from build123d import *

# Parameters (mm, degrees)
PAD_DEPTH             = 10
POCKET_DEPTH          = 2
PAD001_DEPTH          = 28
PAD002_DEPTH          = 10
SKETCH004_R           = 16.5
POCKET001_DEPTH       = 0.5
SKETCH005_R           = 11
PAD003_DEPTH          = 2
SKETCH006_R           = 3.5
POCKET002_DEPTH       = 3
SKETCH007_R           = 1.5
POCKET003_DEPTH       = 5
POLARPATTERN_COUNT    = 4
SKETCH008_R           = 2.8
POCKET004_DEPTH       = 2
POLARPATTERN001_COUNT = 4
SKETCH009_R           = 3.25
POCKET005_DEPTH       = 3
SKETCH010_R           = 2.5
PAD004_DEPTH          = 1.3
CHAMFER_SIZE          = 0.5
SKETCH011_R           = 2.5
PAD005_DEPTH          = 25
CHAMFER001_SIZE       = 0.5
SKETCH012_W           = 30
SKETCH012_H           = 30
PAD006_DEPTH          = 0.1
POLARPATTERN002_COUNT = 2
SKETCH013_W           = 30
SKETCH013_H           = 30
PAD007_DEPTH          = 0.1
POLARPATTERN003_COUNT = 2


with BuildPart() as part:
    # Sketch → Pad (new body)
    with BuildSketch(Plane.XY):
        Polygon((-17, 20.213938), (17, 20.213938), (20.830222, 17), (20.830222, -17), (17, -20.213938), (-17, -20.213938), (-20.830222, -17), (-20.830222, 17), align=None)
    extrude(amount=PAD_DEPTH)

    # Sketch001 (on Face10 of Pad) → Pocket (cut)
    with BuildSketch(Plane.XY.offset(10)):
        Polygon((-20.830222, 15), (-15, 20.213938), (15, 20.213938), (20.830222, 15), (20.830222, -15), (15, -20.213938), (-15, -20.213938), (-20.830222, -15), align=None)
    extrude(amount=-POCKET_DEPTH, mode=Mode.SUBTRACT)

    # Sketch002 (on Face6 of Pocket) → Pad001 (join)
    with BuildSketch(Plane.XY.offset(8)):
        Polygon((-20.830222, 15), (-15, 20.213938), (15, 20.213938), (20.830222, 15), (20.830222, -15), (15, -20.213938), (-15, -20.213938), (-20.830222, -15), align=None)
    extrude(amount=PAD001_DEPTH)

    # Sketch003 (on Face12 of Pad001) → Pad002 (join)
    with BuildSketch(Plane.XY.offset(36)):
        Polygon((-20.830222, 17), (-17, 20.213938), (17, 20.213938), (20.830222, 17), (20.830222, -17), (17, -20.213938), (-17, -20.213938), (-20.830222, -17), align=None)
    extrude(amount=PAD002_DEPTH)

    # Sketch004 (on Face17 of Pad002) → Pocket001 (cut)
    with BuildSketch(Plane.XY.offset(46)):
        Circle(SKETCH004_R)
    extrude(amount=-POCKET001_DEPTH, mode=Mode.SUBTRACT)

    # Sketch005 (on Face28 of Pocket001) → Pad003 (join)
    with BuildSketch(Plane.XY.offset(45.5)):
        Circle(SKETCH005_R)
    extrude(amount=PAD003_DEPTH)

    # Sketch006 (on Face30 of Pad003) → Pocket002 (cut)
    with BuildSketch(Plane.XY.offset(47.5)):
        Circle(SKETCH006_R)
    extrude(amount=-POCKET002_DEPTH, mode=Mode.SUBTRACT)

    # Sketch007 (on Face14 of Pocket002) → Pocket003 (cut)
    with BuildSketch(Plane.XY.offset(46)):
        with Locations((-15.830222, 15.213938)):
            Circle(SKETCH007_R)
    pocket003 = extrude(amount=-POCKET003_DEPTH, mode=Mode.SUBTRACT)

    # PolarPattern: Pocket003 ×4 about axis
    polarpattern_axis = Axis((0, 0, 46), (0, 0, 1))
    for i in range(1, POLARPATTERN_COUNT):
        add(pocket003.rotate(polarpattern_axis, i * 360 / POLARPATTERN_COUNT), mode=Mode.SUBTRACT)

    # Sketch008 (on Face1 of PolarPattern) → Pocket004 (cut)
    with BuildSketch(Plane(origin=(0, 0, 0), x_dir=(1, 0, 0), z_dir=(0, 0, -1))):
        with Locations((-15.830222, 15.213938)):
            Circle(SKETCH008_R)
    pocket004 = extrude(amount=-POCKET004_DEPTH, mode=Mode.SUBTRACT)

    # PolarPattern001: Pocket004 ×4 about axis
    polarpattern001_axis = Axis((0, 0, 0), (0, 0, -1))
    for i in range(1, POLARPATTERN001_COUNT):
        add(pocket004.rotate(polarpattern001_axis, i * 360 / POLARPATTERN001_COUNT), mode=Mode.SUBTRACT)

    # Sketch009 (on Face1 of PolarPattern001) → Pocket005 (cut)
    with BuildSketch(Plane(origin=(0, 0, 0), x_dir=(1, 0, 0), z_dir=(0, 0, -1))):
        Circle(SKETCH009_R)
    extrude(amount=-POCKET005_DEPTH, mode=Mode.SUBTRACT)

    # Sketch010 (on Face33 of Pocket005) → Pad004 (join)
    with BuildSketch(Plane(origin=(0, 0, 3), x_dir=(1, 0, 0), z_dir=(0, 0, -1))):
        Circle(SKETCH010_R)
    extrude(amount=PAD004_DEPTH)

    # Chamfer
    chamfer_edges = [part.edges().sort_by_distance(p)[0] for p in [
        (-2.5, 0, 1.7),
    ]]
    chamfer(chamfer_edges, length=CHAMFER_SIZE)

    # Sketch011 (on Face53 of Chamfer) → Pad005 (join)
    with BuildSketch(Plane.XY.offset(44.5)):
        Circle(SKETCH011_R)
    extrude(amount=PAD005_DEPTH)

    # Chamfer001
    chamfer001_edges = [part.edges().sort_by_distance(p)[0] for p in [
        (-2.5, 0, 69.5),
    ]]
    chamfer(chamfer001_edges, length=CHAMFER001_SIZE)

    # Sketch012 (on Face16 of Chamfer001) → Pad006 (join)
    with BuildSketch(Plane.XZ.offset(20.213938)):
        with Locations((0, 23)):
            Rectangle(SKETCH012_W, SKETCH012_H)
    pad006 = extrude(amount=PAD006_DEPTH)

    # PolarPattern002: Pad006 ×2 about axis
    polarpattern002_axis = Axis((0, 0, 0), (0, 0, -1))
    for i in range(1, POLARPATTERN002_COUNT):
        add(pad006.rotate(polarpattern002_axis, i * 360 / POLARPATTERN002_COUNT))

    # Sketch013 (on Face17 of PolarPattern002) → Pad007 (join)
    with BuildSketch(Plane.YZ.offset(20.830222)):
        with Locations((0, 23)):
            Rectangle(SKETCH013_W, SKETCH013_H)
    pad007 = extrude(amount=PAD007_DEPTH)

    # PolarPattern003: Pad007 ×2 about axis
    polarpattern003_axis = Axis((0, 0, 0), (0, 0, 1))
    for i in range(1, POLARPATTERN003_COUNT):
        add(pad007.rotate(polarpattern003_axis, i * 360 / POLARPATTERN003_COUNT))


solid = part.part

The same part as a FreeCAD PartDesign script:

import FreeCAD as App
import Part
import Sketcher

V = App.Vector
Q = App.Units.Quantity


def edges_at(feature, points):
    """Names of the edges that pass closest to the given points."""
    edges = feature.Shape.Edges
    near = lambda p: min(range(len(edges)), key=lambda i: edges[i].distToShape(Part.Vertex(*p))[0])
    return sorted({f"Edge{near(p) + 1}" for p in points})

doc = App.newDocument("Part")
body = doc.addObject("PartDesign::Body", "Body")

# Sketch on XY plane
sketch1 = body.newObject("Sketcher::SketchObject", "Sketch")
sketch1.AttachmentSupport = (doc.getObject("XY_Plane"), [""])
sketch1.MapMode = "FlatFace"
sketch1.addGeometry(Part.LineSegment(V(17, 20.2, 0), V(-17, 20.2, 0)), False)
sketch1.addGeometry(Part.LineSegment(V(-17, 20.2, 0), V(-20.8, 17, 0)), False)
sketch1.addGeometry(Part.LineSegment(V(-20.8, 17, 0), V(-20.8, -17, 0)), False)
sketch1.addGeometry(Part.LineSegment(V(-20.8, -17, 0), V(-17, -20.2, 0)), False)
sketch1.addGeometry(Part.LineSegment(V(-17, -20.2, 0), V(17, -20.2, 0)), False)
sketch1.addGeometry(Part.LineSegment(V(17, -20.2, 0), V(20.8, -17, 0)), False)
sketch1.addGeometry(Part.LineSegment(V(20.8, -17, 0), V(20.8, 17, 0)), False)
sketch1.addGeometry(Part.LineSegment(V(20.8, 17, 0), V(17, 20.2, 0)), False)
sketch1.addConstraint(Sketcher.Constraint("Coincident", 0, 2, 1, 1))
sketch1.addConstraint(Sketcher.Constraint("Coincident", 1, 2, 2, 1))
sketch1.addConstraint(Sketcher.Constraint("Coincident", 2, 2, 3, 1))
sketch1.addConstraint(Sketcher.Constraint("Coincident", 3, 2, 4, 1))
sketch1.addConstraint(Sketcher.Constraint("Coincident", 4, 2, 5, 1))
sketch1.addConstraint(Sketcher.Constraint("Coincident", 5, 2, 6, 1))
sketch1.addConstraint(Sketcher.Constraint("Coincident", 6, 2, 7, 1))
sketch1.addConstraint(Sketcher.Constraint("Coincident", 7, 2, 0, 1))
sketch1.addConstraint(Sketcher.Constraint("Horizontal", 0))
sketch1.addConstraint(Sketcher.Constraint("Vertical", 2))
sketch1.addConstraint(Sketcher.Constraint("Horizontal", 4))
sketch1.addConstraint(Sketcher.Constraint("Vertical", 6))
sketch1.addConstraint(Sketcher.Constraint("Symmetric", 0, 2, 4, 2, -1, 1))
sketch1.addConstraint(Sketcher.Constraint("Symmetric", 1, 2, 5, 2, -1, 1))
sketch1.addConstraint(Sketcher.Constraint("Parallel", 3, 7))
sketch1.addConstraint(Sketcher.Constraint("Horizontal", 2, 2, 5, 2))
sketch1.addConstraint(Sketcher.Constraint("Horizontal", 1, 2, 6, 2))
sketch1.addConstraint(Sketcher.Constraint("Vertical", 0, 2, 3, 2))
sketch1.addConstraint(Sketcher.Constraint("Equal", 4, 2))
sketch1.addConstraint(Sketcher.Constraint("DistanceX", 0, 2, 0, 1, 34.0))
sketch1.addConstraint(Sketcher.Constraint("Angle", 1, Q("-139.999999 deg")))
sketch1.addConstraint(Sketcher.Constraint("Distance", 1, 5.0))
pad1 = body.newObject("PartDesign::Pad", "Pad")
pad1.Profile = sketch1
pad1.Length = 10

# Sketch on XY plane
sketch2 = body.newObject("Sketcher::SketchObject", "Sketch001")
sketch2.AttachmentSupport = (doc.getObject("XY_Plane"), [""])
sketch2.MapMode = "FlatFace"
sketch2.AttachmentOffset = App.Placement(V(0, 0, 10), App.Rotation())
sketch2.addGeometry(Part.LineSegment(V(-15, 20, 0), V(-21, 15, 0)), False)
sketch2.addGeometry(Part.LineSegment(V(-21, 15, 0), V(-21, -15, 0)), False)
sketch2.addGeometry(Part.LineSegment(V(-21, -15, 0), V(-15, -20, 0)), False)
sketch2.addGeometry(Part.LineSegment(V(-15, -20, 0), V(15, -20, 0)), False)
sketch2.addGeometry(Part.LineSegment(V(15, -20, 0), V(21, -15, 0)), False)
sketch2.addGeometry(Part.LineSegment(V(21, -15, 0), V(21, 15, 0)), False)
sketch2.addGeometry(Part.LineSegment(V(21, 15, 0), V(15, 20, 0)), False)
sketch2.addGeometry(Part.LineSegment(V(15, 20, 0), V(-15, 20, 0)), False)
sketch2.addConstraint(Sketcher.Constraint("Coincident", 0, 2, 1, 1))
sketch2.addConstraint(Sketcher.Constraint("Coincident", 1, 2, 2, 1))
sketch2.addConstraint(Sketcher.Constraint("Coincident", 2, 2, 3, 1))
sketch2.addConstraint(Sketcher.Constraint("Coincident", 3, 2, 4, 1))
sketch2.addConstraint(Sketcher.Constraint("Coincident", 4, 2, 5, 1))
sketch2.addConstraint(Sketcher.Constraint("Coincident", 5, 2, 6, 1))
sketch2.addConstraint(Sketcher.Constraint("Coincident", 6, 2, 7, 1))
sketch2.addConstraint(Sketcher.Constraint("Coincident", 7, 2, 0, 1))
sketch2.addConstraint(Sketcher.Constraint("Vertical", 1))
sketch2.addConstraint(Sketcher.Constraint("Horizontal", 3))
sketch2.addConstraint(Sketcher.Constraint("Vertical", 5))
sketch2.addConstraint(Sketcher.Constraint("Horizontal", 7))
sketch2.addConstraint(Sketcher.Constraint("Symmetric", 0, 2, 4, 2, -1, 1))
sketch2.addConstraint(Sketcher.Constraint("Symmetric", 2, 2, 6, 2, -1, 1))
sketch2.addConstraint(Sketcher.Constraint("Parallel", 0, 4))
sketch2.addConstraint(Sketcher.Constraint("Parallel", 2, 6))
sketch2.addConstraint(Sketcher.Constraint("Horizontal", 1, 2, 4, 2))
sketch2.addConstraint(Sketcher.Constraint("Vertical", 3, 2, 6, 2))
sketch2.addConstraint(Sketcher.Constraint("Equal", 7, 1))
sketch2.addConstraint(Sketcher.Constraint("DistanceX", 3, 1, 3, 2, 30.0))
sketch2.addConstraint(Sketcher.Constraint("Distance", 0, 7.82155))
sketch2.addConstraint(Sketcher.Constraint("DistanceX", 0, 2, -1, 1, 20.830222))
pocket1 = body.newObject("PartDesign::Pocket", "Pocket")
pocket1.Profile = sketch2
pocket1.Length = 2

# Sketch on XY plane
sketch3 = body.newObject("Sketcher::SketchObject", "Sketch002")
sketch3.AttachmentSupport = (doc.getObject("XY_Plane"), [""])
sketch3.MapMode = "FlatFace"
sketch3.AttachmentOffset = App.Placement(V(0, 0, 8), App.Rotation())
sketch3.addGeometry(Part.LineSegment(V(-15, 20, 0), V(-21, 15, 0)), False)
sketch3.addGeometry(Part.LineSegment(V(-21, 15, 0), V(-21, -15, 0)), False)
sketch3.addGeometry(Part.LineSegment(V(-21, -15, 0), V(-15, -20, 0)), False)
sketch3.addGeometry(Part.LineSegment(V(-15, -20, 0), V(15, -20, 0)), False)
sketch3.addGeometry(Part.LineSegment(V(15, -20, 0), V(21, -15, 0)), False)
sketch3.addGeometry(Part.LineSegment(V(21, -15, 0), V(21, 15, 0)), False)
sketch3.addGeometry(Part.LineSegment(V(21, 15, 0), V(15, 20, 0)), False)
sketch3.addGeometry(Part.LineSegment(V(15, 20, 0), V(-15, 20, 0)), False)
sketch3.addConstraint(Sketcher.Constraint("Coincident", 0, 2, 1, 1))
sketch3.addConstraint(Sketcher.Constraint("Coincident", 1, 2, 2, 1))
sketch3.addConstraint(Sketcher.Constraint("Coincident", 2, 2, 3, 1))
sketch3.addConstraint(Sketcher.Constraint("Coincident", 3, 2, 4, 1))
sketch3.addConstraint(Sketcher.Constraint("Coincident", 4, 2, 5, 1))
sketch3.addConstraint(Sketcher.Constraint("Coincident", 5, 2, 6, 1))
sketch3.addConstraint(Sketcher.Constraint("Coincident", 6, 2, 7, 1))
sketch3.addConstraint(Sketcher.Constraint("Coincident", 7, 2, 0, 1))
sketch3.addConstraint(Sketcher.Constraint("Vertical", 1))
sketch3.addConstraint(Sketcher.Constraint("Horizontal", 3))
sketch3.addConstraint(Sketcher.Constraint("Vertical", 5))
sketch3.addConstraint(Sketcher.Constraint("Horizontal", 7))
sketch3.addConstraint(Sketcher.Constraint("Symmetric", 0, 2, 4, 2, -1, 1))
sketch3.addConstraint(Sketcher.Constraint("Symmetric", 2, 2, 6, 2, -1, 1))
sketch3.addConstraint(Sketcher.Constraint("Parallel", 0, 4))
sketch3.addConstraint(Sketcher.Constraint("Parallel", 2, 6))
sketch3.addConstraint(Sketcher.Constraint("Horizontal", 1, 2, 4, 2))
sketch3.addConstraint(Sketcher.Constraint("Vertical", 3, 2, 6, 2))
sketch3.addConstraint(Sketcher.Constraint("Equal", 7, 1))
sketch3.addConstraint(Sketcher.Constraint("DistanceX", 3, 1, 3, 2, 30.0))
sketch3.addConstraint(Sketcher.Constraint("Distance", 0, 7.82155))
sketch3.addConstraint(Sketcher.Constraint("DistanceX", 0, 2, -1, 1, 20.830222))
pad2 = body.newObject("PartDesign::Pad", "Pad001")
pad2.Profile = sketch3
pad2.Length = 28

# Sketch on XY plane
sketch4 = body.newObject("Sketcher::SketchObject", "Sketch003")
sketch4.AttachmentSupport = (doc.getObject("XY_Plane"), [""])
sketch4.MapMode = "FlatFace"
sketch4.AttachmentOffset = App.Placement(V(0, 0, 36), App.Rotation())
sketch4.addGeometry(Part.LineSegment(V(-17, 20.2, 0), V(-20.8, 17, 0)), False)
sketch4.addGeometry(Part.LineSegment(V(-20.8, 17, 0), V(-20.8, -17, 0)), False)
sketch4.addGeometry(Part.LineSegment(V(-20.8, -17, 0), V(-17, -20.2, 0)), False)
sketch4.addGeometry(Part.LineSegment(V(-17, -20.2, 0), V(17, -20.2, 0)), False)
sketch4.addGeometry(Part.LineSegment(V(17, -20.2, 0), V(20.8, -17, 0)), False)
sketch4.addGeometry(Part.LineSegment(V(20.8, -17, 0), V(20.8, 17, 0)), False)
sketch4.addGeometry(Part.LineSegment(V(20.8, 17, 0), V(17, 20.2, 0)), False)
sketch4.addGeometry(Part.LineSegment(V(17, 20.2, 0), V(-17, 20.2, 0)), False)
sketch4.addConstraint(Sketcher.Constraint("Coincident", 0, 2, 1, 1))
sketch4.addConstraint(Sketcher.Constraint("Coincident", 1, 2, 2, 1))
sketch4.addConstraint(Sketcher.Constraint("Coincident", 2, 2, 3, 1))
sketch4.addConstraint(Sketcher.Constraint("Coincident", 3, 2, 4, 1))
sketch4.addConstraint(Sketcher.Constraint("Coincident", 4, 2, 5, 1))
sketch4.addConstraint(Sketcher.Constraint("Coincident", 5, 2, 6, 1))
sketch4.addConstraint(Sketcher.Constraint("Coincident", 6, 2, 7, 1))
sketch4.addConstraint(Sketcher.Constraint("Coincident", 7, 2, 0, 1))
sketch4.addConstraint(Sketcher.Constraint("Vertical", 1))
sketch4.addConstraint(Sketcher.Constraint("Horizontal", 3))
sketch4.addConstraint(Sketcher.Constraint("Vertical", 5))
sketch4.addConstraint(Sketcher.Constraint("Horizontal", 7))
sketch4.addConstraint(Sketcher.Constraint("Symmetric", 0, 2, 4, 2, -1, 1))
sketch4.addConstraint(Sketcher.Constraint("Symmetric", 2, 2, 6, 2, -1, 1))
sketch4.addConstraint(Sketcher.Constraint("Parallel", 0, 4))
sketch4.addConstraint(Sketcher.Constraint("Parallel", 2, 6))
sketch4.addConstraint(Sketcher.Constraint("Horizontal", 1, 2, 4, 2))
sketch4.addConstraint(Sketcher.Constraint("Vertical", 3, 2, 6, 2))
sketch4.addConstraint(Sketcher.Constraint("Equal", 7, 1))
sketch4.addConstraint(Sketcher.Constraint("DistanceX", 3, 1, 3, 2, 34.0))
sketch4.addConstraint(Sketcher.Constraint("Angle", 0, Q("-139.999999 deg")))
sketch4.addConstraint(Sketcher.Constraint("Distance", 0, 5.0))
pad3 = body.newObject("PartDesign::Pad", "Pad002")
pad3.Profile = sketch4
pad3.Length = 10

# Sketch on XY plane
sketch5 = body.newObject("Sketcher::SketchObject", "Sketch004")
sketch5.AttachmentSupport = (doc.getObject("XY_Plane"), [""])
sketch5.MapMode = "FlatFace"
sketch5.AttachmentOffset = App.Placement(V(0, 0, 46), App.Rotation())
sketch5.addGeometry(Part.Circle(V(0, 0, 0), V(0, 0, 1), 16), False)
sketch5.addConstraint(Sketcher.Constraint("Coincident", 0, 3, -1, 1))
sketch5.addConstraint(Sketcher.Constraint("Diameter", 0, 33.0))
pocket2 = body.newObject("PartDesign::Pocket", "Pocket001")
pocket2.Profile = sketch5
pocket2.Length = 0.5

# Sketch on XY plane
sketch6 = body.newObject("Sketcher::SketchObject", "Sketch005")
sketch6.AttachmentSupport = (doc.getObject("XY_Plane"), [""])
sketch6.MapMode = "FlatFace"
sketch6.AttachmentOffset = App.Placement(V(0, 0, 45.5), App.Rotation())
sketch6.addGeometry(Part.Circle(V(0, 0, 0), V(0, 0, 1), 11), False)
sketch6.addConstraint(Sketcher.Constraint("Coincident", 0, 3, -1, 1))
sketch6.addConstraint(Sketcher.Constraint("Diameter", 0, 22.0))
pad4 = body.newObject("PartDesign::Pad", "Pad003")
pad4.Profile = sketch6
pad4.Length = 2

# Sketch on XY plane
sketch7 = body.newObject("Sketcher::SketchObject", "Sketch006")
sketch7.AttachmentSupport = (doc.getObject("XY_Plane"), [""])
sketch7.MapMode = "FlatFace"
sketch7.AttachmentOffset = App.Placement(V(0, 0, 47.5), App.Rotation())
sketch7.addGeometry(Part.Circle(V(0, 0, 0), V(0, 0, 1), 3.5), False)
sketch7.addConstraint(Sketcher.Constraint("Coincident", 0, 3, -1, 1))
sketch7.addConstraint(Sketcher.Constraint("Diameter", 0, 7.0))
pocket3 = body.newObject("PartDesign::Pocket", "Pocket002")
pocket3.Profile = sketch7
pocket3.Length = 3

# Sketch on XY plane
sketch8 = body.newObject("Sketcher::SketchObject", "Sketch007")
sketch8.AttachmentSupport = (doc.getObject("XY_Plane"), [""])
sketch8.MapMode = "FlatFace"
sketch8.AttachmentOffset = App.Placement(V(0, 0, 46), App.Rotation())
sketch8.addGeometry(Part.Circle(V(-15.8, 15.2, 0), V(0, 0, 1), 1.5), False)
sketch8.addConstraint(Sketcher.Constraint("Diameter", 0, 3.0))
sketch8.addConstraint(Sketcher.Constraint("DistanceX", 0, 3, -1, 1, 15.830222))
sketch8.addConstraint(Sketcher.Constraint("DistanceY", -1, 1, 0, 3, 15.213938))
pocket4 = body.newObject("PartDesign::Pocket", "Pocket003")
pocket4.Profile = sketch8
pocket4.Length = 5
doc.recompute()

polarpattern = body.newObject("PartDesign::PolarPattern", "PolarPattern")
polarpattern.Originals = [pocket4]
polarpattern.Axis = (doc.getObject("Z_Axis"), [""])
polarpattern.Angle = 360
polarpattern.Occurrences = 4
body.Tip = polarpattern

# Sketch on XY plane
sketch9 = body.newObject("Sketcher::SketchObject", "Sketch008")
sketch9.AttachmentSupport = (doc.getObject("XY_Plane"), [""])
sketch9.MapMode = "FlatFace"
sketch9.addGeometry(Part.Circle(V(-15.8, -15.2, 0), V(0, 0, 1), 2.8), False)
sketch9.addConstraint(Sketcher.Constraint("Diameter", 0, 5.6))
sketch9.addConstraint(Sketcher.Constraint("DistanceX", 0, 3, -1, 1, 15.830222))
sketch9.addConstraint(Sketcher.Constraint("DistanceY", 0, 3, -1, 1, 15.213938))
pocket5 = body.newObject("PartDesign::Pocket", "Pocket004")
pocket5.Profile = sketch9
pocket5.Length = 2
pocket5.Reversed = True
doc.recompute()

polarpattern2 = body.newObject("PartDesign::PolarPattern", "PolarPattern001")
polarpattern2.Originals = [pocket5]
polarpattern2.Axis = (doc.getObject("Z_Axis"), [""])
polarpattern2.Angle = 360
polarpattern2.Occurrences = 4
body.Tip = polarpattern2

# Sketch on XY plane
sketch10 = body.newObject("Sketcher::SketchObject", "Sketch009")
sketch10.AttachmentSupport = (doc.getObject("XY_Plane"), [""])
sketch10.MapMode = "FlatFace"
sketch10.addGeometry(Part.Circle(V(0, 0, 0), V(0, 0, 1), 3.2), False)
sketch10.addConstraint(Sketcher.Constraint("Coincident", 0, 3, -1, 1))
sketch10.addConstraint(Sketcher.Constraint("Diameter", 0, 6.5))
pocket6 = body.newObject("PartDesign::Pocket", "Pocket005")
pocket6.Profile = sketch10
pocket6.Length = 3
pocket6.Reversed = True

# Sketch on XY plane
sketch11 = body.newObject("Sketcher::SketchObject", "Sketch010")
sketch11.AttachmentSupport = (doc.getObject("XY_Plane"), [""])
sketch11.MapMode = "FlatFace"
sketch11.AttachmentOffset = App.Placement(V(0, 0, 3), App.Rotation())
sketch11.addGeometry(Part.Circle(V(0, 0, 0), V(0, 0, 1), 2.5), False)
sketch11.addConstraint(Sketcher.Constraint("Coincident", 0, 3, -1, 1))
sketch11.addConstraint(Sketcher.Constraint("Diameter", 0, 5.0))
pad5 = body.newObject("PartDesign::Pad", "Pad004")
pad5.Profile = sketch11
pad5.Length = 1.3
pad5.Reversed = True
doc.recompute()

chamfer = body.newObject("PartDesign::Chamfer", "Chamfer")
chamfer.Base = (pad5, edges_at(pad5, [(-2.5, 0, 1.7)]))
chamfer.Size = 0.5

# Sketch on XY plane
sketch12 = body.newObject("Sketcher::SketchObject", "Sketch011")
sketch12.AttachmentSupport = (doc.getObject("XY_Plane"), [""])
sketch12.MapMode = "FlatFace"
sketch12.AttachmentOffset = App.Placement(V(0, 0, 44.5), App.Rotation())
sketch12.addGeometry(Part.Circle(V(0, 0, 0), V(0, 0, 1), 2.5), False)
sketch12.addConstraint(Sketcher.Constraint("Coincident", 0, 3, -1, 1))
sketch12.addConstraint(Sketcher.Constraint("Diameter", 0, 5.0))
pad6 = body.newObject("PartDesign::Pad", "Pad005")
pad6.Profile = sketch12
pad6.Length = 25
doc.recompute()

chamfer2 = body.newObject("PartDesign::Chamfer", "Chamfer001")
chamfer2.Base = (pad6, edges_at(pad6, [(-2.5, 0, 69.5)]))
chamfer2.Size = 0.5

# Sketch on XZ plane
sketch13 = body.newObject("Sketcher::SketchObject", "Sketch012")
sketch13.AttachmentSupport = (doc.getObject("XZ_Plane"), [""])
sketch13.MapMode = "FlatFace"
sketch13.AttachmentOffset = App.Placement(V(0, 0, 20.213938), App.Rotation())
sketch13.addGeometry(Part.LineSegment(V(-15, 38, 0), V(-15, 8, 0)), False)
sketch13.addGeometry(Part.LineSegment(V(-15, 8, 0), V(15, 8, 0)), False)
sketch13.addGeometry(Part.LineSegment(V(15, 8, 0), V(15, 38, 0)), False)
sketch13.addGeometry(Part.LineSegment(V(15, 38, 0), V(-15, 38, 0)), False)
sketch13.addConstraint(Sketcher.Constraint("Coincident", 0, 2, 1, 1))
sketch13.addConstraint(Sketcher.Constraint("Coincident", 1, 2, 2, 1))
sketch13.addConstraint(Sketcher.Constraint("Coincident", 2, 2, 3, 1))
sketch13.addConstraint(Sketcher.Constraint("Coincident", 3, 2, 0, 1))
sketch13.addConstraint(Sketcher.Constraint("Vertical", 0))
sketch13.addConstraint(Sketcher.Constraint("Horizontal", 1))
sketch13.addConstraint(Sketcher.Constraint("Vertical", 2))
sketch13.addConstraint(Sketcher.Constraint("Horizontal", 3))
sketch13.addConstraint(Sketcher.Constraint("Equal", 3, 0))
sketch13.addConstraint(Sketcher.Constraint("DistanceX", 1, 1, 1, 2, 30.0))
sketch13.addConstraint(Sketcher.Constraint("DistanceX", 0, 2, -1, 1, 15.0))
sketch13.addConstraint(Sketcher.Constraint("DistanceY", -1, 1, 0, 2, 8.0))
pad7 = body.newObject("PartDesign::Pad", "Pad006")
pad7.Profile = sketch13
pad7.Length = 0.1
doc.recompute()

polarpattern3 = body.newObject("PartDesign::PolarPattern", "PolarPattern002")
polarpattern3.Originals = [pad7]
polarpattern3.Axis = (doc.getObject("Z_Axis"), [""])
polarpattern3.Angle = 360
polarpattern3.Occurrences = 2
body.Tip = polarpattern3

# Sketch on YZ plane
sketch14 = body.newObject("Sketcher::SketchObject", "Sketch013")
sketch14.AttachmentSupport = (doc.getObject("YZ_Plane"), [""])
sketch14.MapMode = "FlatFace"
sketch14.AttachmentOffset = App.Placement(V(0, 0, 20.830222), App.Rotation())
sketch14.addGeometry(Part.LineSegment(V(-15, 38, 0), V(-15, 8, 0)), False)
sketch14.addGeometry(Part.LineSegment(V(-15, 8, 0), V(15, 8, 0)), False)
sketch14.addGeometry(Part.LineSegment(V(15, 8, 0), V(15, 38, 0)), False)
sketch14.addGeometry(Part.LineSegment(V(15, 38, 0), V(-15, 38, 0)), False)
sketch14.addConstraint(Sketcher.Constraint("Coincident", 0, 2, 1, 1))
sketch14.addConstraint(Sketcher.Constraint("Coincident", 1, 2, 2, 1))
sketch14.addConstraint(Sketcher.Constraint("Coincident", 2, 2, 3, 1))
sketch14.addConstraint(Sketcher.Constraint("Coincident", 3, 2, 0, 1))
sketch14.addConstraint(Sketcher.Constraint("Vertical", 0))
sketch14.addConstraint(Sketcher.Constraint("Horizontal", 1))
sketch14.addConstraint(Sketcher.Constraint("Vertical", 2))
sketch14.addConstraint(Sketcher.Constraint("Horizontal", 3))
sketch14.addConstraint(Sketcher.Constraint("Equal", 3, 0))
sketch14.addConstraint(Sketcher.Constraint("DistanceX", 1, 1, 1, 2, 30.0))
sketch14.addConstraint(Sketcher.Constraint("DistanceX", 0, 2, -1, 1, 15.0))
sketch14.addConstraint(Sketcher.Constraint("DistanceY", -1, 1, 0, 2, 8.0))
pad8 = body.newObject("PartDesign::Pad", "Pad007")
pad8.Profile = sketch14
pad8.Length = 0.1
doc.recompute()

polarpattern4 = body.newObject("PartDesign::PolarPattern", "PolarPattern003")
polarpattern4.Originals = [pad8]
polarpattern4.Axis = (doc.getObject("Z_Axis"), [""])
polarpattern4.Angle = 360
polarpattern4.Occurrences = 2
body.Tip = polarpattern4

doc.recompute()
